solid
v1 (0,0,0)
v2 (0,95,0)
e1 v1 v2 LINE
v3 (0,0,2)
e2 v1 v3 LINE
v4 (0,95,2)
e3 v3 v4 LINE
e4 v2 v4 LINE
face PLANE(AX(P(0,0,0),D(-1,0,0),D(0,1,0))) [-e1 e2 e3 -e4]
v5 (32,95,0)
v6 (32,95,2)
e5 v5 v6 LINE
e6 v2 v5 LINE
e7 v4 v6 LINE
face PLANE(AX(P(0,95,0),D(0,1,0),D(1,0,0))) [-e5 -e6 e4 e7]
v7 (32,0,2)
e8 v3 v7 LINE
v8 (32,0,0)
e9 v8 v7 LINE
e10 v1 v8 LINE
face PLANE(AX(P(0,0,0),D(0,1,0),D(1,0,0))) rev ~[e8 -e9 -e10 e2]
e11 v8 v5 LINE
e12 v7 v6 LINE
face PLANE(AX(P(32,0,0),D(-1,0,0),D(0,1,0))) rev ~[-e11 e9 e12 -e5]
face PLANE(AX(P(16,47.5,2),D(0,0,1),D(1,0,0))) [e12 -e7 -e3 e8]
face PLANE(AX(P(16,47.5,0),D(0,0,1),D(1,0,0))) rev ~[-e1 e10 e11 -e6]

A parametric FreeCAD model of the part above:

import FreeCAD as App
import Part
import Sketcher

doc = App.newDocument("Part")
params = doc.addObject("Spreadsheet::Sheet", "Params")
for row, (alias, value) in enumerate([
    ("sketch1_width", "32 mm"),
    ("sketch1_height", "95 mm"),
    ("pad1_length", "2 mm"),
], start=1):
    params.set(f"A{row}", alias)
    params.set(f"B{row}", "=" + value)
    params.setAlias(f"B{row}", alias)

body = doc.addObject("PartDesign::Body", "Body")

sketch1 = body.newObject("Sketcher::SketchObject", "Sketch")
sketch1.AttachmentSupport = (doc.getObject("XY_Plane"), [""])
sketch1.MapMode = "FlatFace"
sketch1.addGeometry([
    Part.LineSegment(App.Vector(0, 95, 0), App.Vector(0, 0, 0)),
    Part.LineSegment(App.Vector(0, 0, 0), App.Vector(32, 0, 0)),
    Part.LineSegment(App.Vector(32, 0, 0), App.Vector(32, 95, 0)),
    Part.LineSegment(App.Vector(32, 95, 0), App.Vector(0, 95, 0)),
], False)
sketch1.addConstraint([
    Sketcher.Constraint("Coincident", 0, 2, 1, 1),
    Sketcher.Constraint("Coincident", 1, 2, 2, 1),
    Sketcher.Constraint("Coincident", 2, 2, 3, 1),
    Sketcher.Constraint("Coincident", 3, 2, 0, 1),
    Sketcher.Constraint("Vertical", 0),
    Sketcher.Constraint("Horizontal", 1),
    Sketcher.Constraint("Vertical", 2),
    Sketcher.Constraint("Horizontal", 3),
    Sketcher.Constraint("Coincident", 0, 2, -1, 1),
    Sketcher.Constraint("DistanceX", 1, 1, 1, 2, 32.0),
    Sketcher.Constraint("DistanceY", 0, 2, 0, 1, 95.0),
])
sketch1.setExpression("Constraints[9]", "Params.sketch1_width")
sketch1.setExpression("Constraints[10]", "Params.sketch1_height")
pad1 = body.newObject("PartDesign::Pad", "Pad")
pad1.Profile = sketch1
pad1.setExpression("Length", "Params.pad1_length")

doc.recompute()
